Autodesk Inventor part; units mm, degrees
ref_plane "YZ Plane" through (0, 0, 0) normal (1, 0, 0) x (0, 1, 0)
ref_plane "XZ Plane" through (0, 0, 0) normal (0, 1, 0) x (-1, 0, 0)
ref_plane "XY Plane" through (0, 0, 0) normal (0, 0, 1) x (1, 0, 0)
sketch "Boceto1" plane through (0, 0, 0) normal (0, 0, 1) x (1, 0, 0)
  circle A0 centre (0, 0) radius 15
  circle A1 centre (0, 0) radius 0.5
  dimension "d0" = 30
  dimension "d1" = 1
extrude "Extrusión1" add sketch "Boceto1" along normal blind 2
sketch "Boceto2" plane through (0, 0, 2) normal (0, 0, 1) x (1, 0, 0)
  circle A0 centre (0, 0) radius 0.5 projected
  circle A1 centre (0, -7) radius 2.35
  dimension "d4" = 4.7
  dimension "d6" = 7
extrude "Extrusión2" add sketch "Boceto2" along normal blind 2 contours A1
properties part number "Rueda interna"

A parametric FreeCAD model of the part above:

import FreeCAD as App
import Part
import Sketcher
from FreeCAD import Vector

doc = App.newDocument("Part")
params = doc.addObject("Spreadsheet::Sheet", "Params")
for row, (alias, value) in enumerate([
    ("sketch1_diameter", "30 mm"),
    ("sketch1_diameter2", "1 mm"),
    ("pad1_length", "2 mm"),
    ("sketch2_diameter", "4.7 mm"),
    ("pad2_length", "2 mm"),
], start=1):
    params.set(f"A{row}", alias)
    params.set(f"B{row}", "=" + value)
    params.setAlias(f"B{row}", alias)

body = doc.addObject("PartDesign::Body", "Body")

sketch1 = body.newObject("Sketcher::SketchObject", "Sketch")
sketch1.AttachmentSupport = (doc.getObject("XY_Plane"), [""])
sketch1.MapMode = "FlatFace"
sketch1.addGeometry(Part.Circle(Vector(0, 0, 0), Vector(0, 0, 1), 15), False)
sketch1.addGeometry(Part.Circle(Vector(0, 0, 0), Vector(0, 0, 1), 0.5), False)
sketch1.addConstraint(Sketcher.Constraint("Coincident", 0, 3, -1, 1))
sketch1.addConstraint(Sketcher.Constraint("Coincident", 1, 3, -1, 1))
sketch1.addConstraint(Sketcher.Constraint("Diameter", 0, 30.0))
sketch1.addConstraint(Sketcher.Constraint("Diameter", 1, 1.0))
sketch1.setExpression("Constraints[2]", "Params.sketch1_diameter")
sketch1.setExpression("Constraints[3]", "Params.sketch1_diameter2")
pad1 = body.newObject("PartDesign::Pad", "Pad")
pad1.Profile = sketch1
pad1.setExpression("Length", "Params.pad1_length")

sketch2 = body.newObject("Sketcher::SketchObject", "Sketch001")
sketch2.AttachmentSupport = (doc.getObject("XY_Plane"), [""])
sketch2.MapMode = "FlatFace"
sketch2.AttachmentOffset = App.Placement(Vector(0, 0, 2), App.Rotation())
sketch2.addGeometry(Part.Circle(Vector(0, -7, 0), Vector(0, 0, 1), 2.4), False)
sketch2.addConstraint(Sketcher.Constraint("PointOnObject", 0, 3, -2))
sketch2.addConstraint(Sketcher.Constraint("Diameter", 0, 4.7))
sketch2.addConstraint(Sketcher.Constraint("DistanceY", 0, 3, -1, 1, 7.0))
sketch2.setExpression("Constraints[1]", "Params.sketch2_diameter")
pad2 = body.newObject("PartDesign::Pad", "Pad001")
pad2.Profile = sketch2
pad2.setExpression("Length", "Params.pad2_length")

doc.recompute()
